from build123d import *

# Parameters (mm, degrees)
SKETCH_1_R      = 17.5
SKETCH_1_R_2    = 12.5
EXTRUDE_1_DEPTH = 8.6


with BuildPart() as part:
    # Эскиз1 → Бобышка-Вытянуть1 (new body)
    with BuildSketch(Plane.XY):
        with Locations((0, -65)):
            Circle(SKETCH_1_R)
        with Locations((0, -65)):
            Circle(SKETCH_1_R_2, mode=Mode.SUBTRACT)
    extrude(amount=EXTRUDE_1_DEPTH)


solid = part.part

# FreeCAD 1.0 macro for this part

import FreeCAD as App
import Part
import Sketcher
from FreeCAD import Vector

doc = App.newDocument("Part")
params = doc.addObject("Spreadsheet::Sheet", "Params")
for row, (alias, value) in enumerate([
    ("sketch1_diameter", "35 mm"),
    ("sketch1_diameter2", "25 mm"),
    ("pad1_length", "8.6 mm"),
], start=1):
    params.set(f"A{row}", alias)
    params.set(f"B{row}", "=" + value)
    params.setAlias(f"B{row}", alias)

body = doc.addObject("PartDesign::Body", "Body")

# Sketch on XY plane
sketch1 = body.newObject("Sketcher::SketchObject", "Sketch")
sketch1.AttachmentSupport = (doc.getObject("XY_Plane"), [""])
sketch1.MapMode = "FlatFace"
sketch1.addGeometry([
    Part.Circle(Vector(0, -65, 0), Vector(0, 0, 1), 18),
    Part.Circle(Vector(0, -65, 0), Vector(0, 0, 1), 12),
], False)
sketch1.addConstraint([
    Sketcher.Constraint("Coincident", 1, 3, 0, 3),
    Sketcher.Constraint("PointOnObject", 0, 3, -2),
    Sketcher.Constraint("Diameter", 0, 35.0),
    Sketcher.Constraint("Diameter", 1, 25.0),
    Sketcher.Constraint("DistanceY", 0, 3, -1, 1, 65.0),
])
sketch1.setExpression("Constraints[2]", "Params.sketch1_diameter")
sketch1.setExpression("Constraints[3]", "Params.sketch1_diameter2")
pad1 = body.newObject("PartDesign::Pad", "Pad")
pad1.Profile = sketch1
pad1.setExpression("Length", "Params.pad1_length")

doc.recompute()
